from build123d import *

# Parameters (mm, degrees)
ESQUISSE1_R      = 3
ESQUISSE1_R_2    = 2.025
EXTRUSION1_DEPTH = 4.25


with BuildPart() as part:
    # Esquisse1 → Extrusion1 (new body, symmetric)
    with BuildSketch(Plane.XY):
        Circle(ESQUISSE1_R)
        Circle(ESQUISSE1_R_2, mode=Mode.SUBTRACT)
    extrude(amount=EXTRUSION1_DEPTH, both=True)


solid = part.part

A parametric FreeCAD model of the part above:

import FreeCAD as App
import Part
import Sketcher

doc = App.newDocument("Part")
params = doc.addObject("Spreadsheet::Sheet", "Params")
for row, (alias, value) in enumerate([
    ("sketch1_diameter", "6 mm"),
    ("sketch1_diameter2", "4.05 mm"),
    ("pad1_length", "8.5 mm"),
], start=1):
    params.set(f"A{row}", alias)
    params.set(f"B{row}", "=" + value)
    params.setAlias(f"B{row}", alias)

body = doc.addObject("PartDesign::Body", "Body")

# Sketch on XY plane
sketch1 = body.newObject("Sketcher::SketchObject", "Sketch")
sketch1.AttachmentSupport = (doc.getObject("XY_Plane"), [""])
sketch1.MapMode = "FlatFace"
sketch1.addGeometry([
    Part.Circle(App.Vector(0, 0, 0), App.Vector(0, 0, 1), 3),
    Part.Circle(App.Vector(0, 0, 0), App.Vector(0, 0, 1), 2),
], False)
sketch1.addConstraint([
    Sketcher.Constraint("Coincident", 0, 3, -1, 1),
    Sketcher.Constraint("Coincident", 1, 3, -1, 1),
    Sketcher.Constraint("Diameter", 0, 6.0),
    Sketcher.Constraint("Diameter", 1, 4.05),
])
sketch1.setExpression("Constraints[2]", "Params.sketch1_diameter")
sketch1.setExpression("Constraints[3]", "Params.sketch1_diameter2")
pad1 = body.newObject("PartDesign::Pad", "Pad")
pad1.Profile = sketch1
pad1.setExpression("Length", "Params.pad1_length")
pad1.Midplane = True

doc.recompute()
